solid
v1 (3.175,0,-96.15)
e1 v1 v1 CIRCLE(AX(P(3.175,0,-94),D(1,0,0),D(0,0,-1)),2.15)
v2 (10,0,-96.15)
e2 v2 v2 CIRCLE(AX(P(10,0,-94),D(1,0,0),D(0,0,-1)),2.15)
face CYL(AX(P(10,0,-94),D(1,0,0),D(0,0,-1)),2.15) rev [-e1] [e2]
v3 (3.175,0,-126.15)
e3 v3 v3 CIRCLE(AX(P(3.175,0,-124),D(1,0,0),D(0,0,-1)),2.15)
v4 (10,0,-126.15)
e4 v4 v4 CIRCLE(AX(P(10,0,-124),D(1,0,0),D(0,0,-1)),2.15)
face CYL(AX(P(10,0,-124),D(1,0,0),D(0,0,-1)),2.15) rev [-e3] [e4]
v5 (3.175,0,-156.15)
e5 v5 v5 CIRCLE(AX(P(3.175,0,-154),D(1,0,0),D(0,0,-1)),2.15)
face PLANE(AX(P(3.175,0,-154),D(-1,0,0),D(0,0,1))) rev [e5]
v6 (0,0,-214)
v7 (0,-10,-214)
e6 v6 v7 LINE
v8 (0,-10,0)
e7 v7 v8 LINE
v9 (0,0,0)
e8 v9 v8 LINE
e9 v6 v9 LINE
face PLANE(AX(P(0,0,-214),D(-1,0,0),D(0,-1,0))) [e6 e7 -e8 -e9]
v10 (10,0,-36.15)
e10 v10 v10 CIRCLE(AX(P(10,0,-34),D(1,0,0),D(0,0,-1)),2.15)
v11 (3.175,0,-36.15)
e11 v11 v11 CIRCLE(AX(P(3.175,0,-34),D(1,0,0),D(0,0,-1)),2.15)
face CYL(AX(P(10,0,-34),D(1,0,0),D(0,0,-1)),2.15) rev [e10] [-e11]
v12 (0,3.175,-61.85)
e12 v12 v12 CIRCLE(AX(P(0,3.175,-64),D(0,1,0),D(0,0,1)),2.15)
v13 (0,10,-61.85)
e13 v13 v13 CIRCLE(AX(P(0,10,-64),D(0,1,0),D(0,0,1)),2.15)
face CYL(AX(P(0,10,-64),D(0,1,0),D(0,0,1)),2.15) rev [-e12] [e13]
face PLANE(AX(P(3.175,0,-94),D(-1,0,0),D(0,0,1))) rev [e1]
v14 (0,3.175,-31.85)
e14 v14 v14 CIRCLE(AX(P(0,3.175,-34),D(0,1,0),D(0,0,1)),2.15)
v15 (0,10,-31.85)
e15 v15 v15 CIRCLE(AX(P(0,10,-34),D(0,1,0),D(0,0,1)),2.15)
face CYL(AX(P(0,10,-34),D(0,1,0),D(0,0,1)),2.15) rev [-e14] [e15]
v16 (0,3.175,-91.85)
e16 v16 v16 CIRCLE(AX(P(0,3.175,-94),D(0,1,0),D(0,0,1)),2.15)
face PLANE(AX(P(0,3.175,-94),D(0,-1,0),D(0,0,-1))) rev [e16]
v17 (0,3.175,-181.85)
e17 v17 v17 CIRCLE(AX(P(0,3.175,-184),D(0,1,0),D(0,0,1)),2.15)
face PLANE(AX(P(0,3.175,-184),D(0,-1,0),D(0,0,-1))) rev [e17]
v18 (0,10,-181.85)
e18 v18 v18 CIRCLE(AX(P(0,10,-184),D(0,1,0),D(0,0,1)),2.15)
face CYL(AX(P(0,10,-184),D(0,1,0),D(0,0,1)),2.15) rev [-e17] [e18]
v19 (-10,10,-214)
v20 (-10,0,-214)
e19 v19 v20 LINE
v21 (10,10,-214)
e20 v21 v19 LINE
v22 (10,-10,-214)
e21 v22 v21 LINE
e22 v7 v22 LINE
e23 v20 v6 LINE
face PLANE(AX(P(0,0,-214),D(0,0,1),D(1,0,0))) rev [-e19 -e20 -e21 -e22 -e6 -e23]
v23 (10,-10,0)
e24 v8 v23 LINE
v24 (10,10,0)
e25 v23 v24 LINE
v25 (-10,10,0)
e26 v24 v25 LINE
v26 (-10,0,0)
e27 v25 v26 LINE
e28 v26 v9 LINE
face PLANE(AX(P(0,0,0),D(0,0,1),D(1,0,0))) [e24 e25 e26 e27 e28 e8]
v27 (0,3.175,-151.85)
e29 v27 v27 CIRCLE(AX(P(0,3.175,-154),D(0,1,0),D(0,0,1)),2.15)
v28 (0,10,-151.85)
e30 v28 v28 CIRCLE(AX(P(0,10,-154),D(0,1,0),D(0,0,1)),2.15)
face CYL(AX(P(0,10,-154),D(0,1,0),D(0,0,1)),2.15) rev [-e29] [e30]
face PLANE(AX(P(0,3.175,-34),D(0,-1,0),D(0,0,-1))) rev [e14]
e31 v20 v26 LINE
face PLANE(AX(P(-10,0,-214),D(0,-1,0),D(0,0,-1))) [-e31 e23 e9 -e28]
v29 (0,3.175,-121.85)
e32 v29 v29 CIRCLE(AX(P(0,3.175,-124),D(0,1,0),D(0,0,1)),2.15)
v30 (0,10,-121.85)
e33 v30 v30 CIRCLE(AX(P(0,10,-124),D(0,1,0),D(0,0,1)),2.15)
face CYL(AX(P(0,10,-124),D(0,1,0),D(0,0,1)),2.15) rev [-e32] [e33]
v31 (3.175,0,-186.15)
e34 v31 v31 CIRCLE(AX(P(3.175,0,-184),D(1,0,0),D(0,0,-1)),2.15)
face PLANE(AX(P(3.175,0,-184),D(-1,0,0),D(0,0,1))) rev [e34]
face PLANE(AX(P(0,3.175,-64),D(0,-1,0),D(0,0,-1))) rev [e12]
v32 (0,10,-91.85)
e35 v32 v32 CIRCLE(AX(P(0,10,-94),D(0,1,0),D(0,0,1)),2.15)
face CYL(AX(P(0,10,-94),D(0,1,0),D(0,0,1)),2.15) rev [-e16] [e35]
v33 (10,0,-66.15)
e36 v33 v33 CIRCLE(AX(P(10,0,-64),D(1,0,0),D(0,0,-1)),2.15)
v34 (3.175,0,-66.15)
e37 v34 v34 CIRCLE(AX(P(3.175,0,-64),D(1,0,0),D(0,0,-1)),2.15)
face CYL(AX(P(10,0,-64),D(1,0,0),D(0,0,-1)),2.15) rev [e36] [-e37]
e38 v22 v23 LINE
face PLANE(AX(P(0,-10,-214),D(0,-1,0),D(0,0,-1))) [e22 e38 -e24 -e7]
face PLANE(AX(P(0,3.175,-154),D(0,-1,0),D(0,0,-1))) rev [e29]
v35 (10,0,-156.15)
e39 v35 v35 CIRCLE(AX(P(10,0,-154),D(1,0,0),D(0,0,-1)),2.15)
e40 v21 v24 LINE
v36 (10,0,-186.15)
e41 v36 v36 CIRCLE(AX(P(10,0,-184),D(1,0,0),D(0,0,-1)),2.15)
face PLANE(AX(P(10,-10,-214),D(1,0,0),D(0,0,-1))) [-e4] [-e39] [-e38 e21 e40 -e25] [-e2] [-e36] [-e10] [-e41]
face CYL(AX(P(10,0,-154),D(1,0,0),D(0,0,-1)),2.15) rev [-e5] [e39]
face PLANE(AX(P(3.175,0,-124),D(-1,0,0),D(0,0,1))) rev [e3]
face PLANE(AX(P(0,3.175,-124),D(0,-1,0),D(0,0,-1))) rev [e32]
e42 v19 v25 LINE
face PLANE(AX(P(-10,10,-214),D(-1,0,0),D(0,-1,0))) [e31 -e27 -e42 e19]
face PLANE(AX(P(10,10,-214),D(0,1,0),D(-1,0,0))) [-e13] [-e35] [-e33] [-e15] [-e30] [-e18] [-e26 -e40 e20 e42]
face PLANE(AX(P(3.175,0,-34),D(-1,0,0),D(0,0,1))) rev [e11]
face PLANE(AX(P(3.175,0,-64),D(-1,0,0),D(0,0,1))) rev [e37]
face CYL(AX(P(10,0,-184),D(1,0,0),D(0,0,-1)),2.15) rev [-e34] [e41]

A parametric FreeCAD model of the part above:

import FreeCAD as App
import Part
import Sketcher

V = App.Vector


def add_polygon(sketch, points):
    """Adds a closed chain of lines whose ends are joined by coincident constraints."""
    first, n = sketch.GeometryCount, len(points)
    for a, b in zip(points, points[1:] + points[:1]):
        sketch.addGeometry(Part.LineSegment(App.Vector(*a, 0), App.Vector(*b, 0)), False)
    for i in range(n):
        sketch.addConstraint(Sketcher.Constraint("Coincident", first + i, 2, first + (i + 1) % n, 1))

doc = App.newDocument("Part")
body = doc.addObject("PartDesign::Body", "Body")

# Sketch on XY plane
sketch1 = body.newObject("Sketcher::SketchObject", "Sketch")
sketch1.AttachmentSupport = (doc.getObject("XY_Plane"), [""])
sketch1.MapMode = "FlatFace"
add_polygon(sketch1, [(0, -10), (10, -10), (10, 10), (-10, 10), (-10, 0), (0, 0)])  # lines 0-5
sketch1.addConstraint(Sketcher.Constraint("Horizontal", 0))
sketch1.addConstraint(Sketcher.Constraint("Vertical", 1))
sketch1.addConstraint(Sketcher.Constraint("Horizontal", 2))
sketch1.addConstraint(Sketcher.Constraint("Vertical", 3))
sketch1.addConstraint(Sketcher.Constraint("Horizontal", 4))
sketch1.addConstraint(Sketcher.Constraint("Vertical", 5))
sketch1.addConstraint(Sketcher.Constraint("Coincident", 4, 2, -1, 1))
sketch1.addConstraint(Sketcher.Constraint("Symmetric", 0, 2, 2, 2, -1, 1))
sketch1.addConstraint(Sketcher.Constraint("Equal", 2, 1))
sketch1.addConstraint(Sketcher.Constraint("DistanceX", 0, 1, 0, 2, 10.0))
pad1 = body.newObject("PartDesign::Pad", "Pad")
pad1.Profile = sketch1
pad1.Length = 214
pad1.Reversed = True

# Sketch on YZ plane
sketch2 = body.newObject("Sketcher::SketchObject", "Sketch001")
sketch2.AttachmentSupport = (doc.getObject("YZ_Plane"), [""])
sketch2.MapMode = "FlatFace"
sketch2.AttachmentOffset = App.Placement(V(0, 0, 10), App.Rotation())
sketch2.addGeometry(Part.Circle(V(0, -34, 0), V(0, 0, 1), 2.15), False)
sketch2.addGeometry(Part.Circle(V(0, -64, 0), V(0, 0, 1), 2.15), False)
sketch2.addGeometry(Part.Circle(V(0, -94, 0), V(0, 0, 1), 2.15), False)
sketch2.addGeometry(Part.Circle(V(0, -124, 0), V(0, 0, 1), 2.15), False)
sketch2.addGeometry(Part.Circle(V(0, -154, 0), V(0, 0, 1), 2.15), False)
sketch2.addGeometry(Part.Circle(V(0, -184, 0), V(0, 0, 1), 2.15), False)
sketch2.addConstraint(Sketcher.Constraint("Equal", 0, 1))
sketch2.addConstraint(Sketcher.Constraint("Equal", 1, 2))
sketch2.addConstraint(Sketcher.Constraint("Equal", 2, 3))
sketch2.addConstraint(Sketcher.Constraint("Equal", 3, 4))
sketch2.addConstraint(Sketcher.Constraint("Equal", 4, 5))
sketch2.addConstraint(Sketcher.Constraint("PointOnObject", 0, 3, -2))
sketch2.addConstraint(Sketcher.Constraint("PointOnObject", 1, 3, -2))
sketch2.addConstraint(Sketcher.Constraint("PointOnObject", 2, 3, -2))
sketch2.addConstraint(Sketcher.Constraint("PointOnObject", 3, 3, -2))
sketch2.addConstraint(Sketcher.Constraint("PointOnObject", 4, 3, -2))
sketch2.addConstraint(Sketcher.Constraint("PointOnObject", 5, 3, -2))
sketch2.addConstraint(Sketcher.Constraint("Diameter", 0, 4.3))
sketch2.addConstraint(Sketcher.Constraint("DistanceY", 0, 3, -1, 1, 34.0))
sketch2.addConstraint(Sketcher.Constraint("DistanceY", 1, 3, -1, 1, 64.0))
sketch2.addConstraint(Sketcher.Constraint("DistanceY", 2, 3, -1, 1, 94.0))
sketch2.addConstraint(Sketcher.Constraint("DistanceY", 3, 3, -1, 1, 124.0))
sketch2.addConstraint(Sketcher.Constraint("DistanceY", 4, 3, -1, 1, 154.0))
sketch2.addConstraint(Sketcher.Constraint("DistanceY", 5, 3, -1, 1, 184.0))
doc.recompute()
hole = body.newObject("PartDesign::Hole", "Hole")
hole.Profile = sketch2
hole.ThreadType = "None"
hole.Diameter = 4.3
hole.DepthType = "Dimension"
hole.Depth = 6.825
hole.DrillPoint = "Flat"

# Sketch on XZ plane
sketch3 = body.newObject("Sketcher::SketchObject", "Sketch002")
sketch3.AttachmentSupport = (doc.getObject("XZ_Plane"), [""])
sketch3.MapMode = "FlatFace"
sketch3.AttachmentOffset = App.Placement(V(0, 0, -10), App.Rotation())
sketch3.addGeometry(Part.Circle(V(0, -34, 0), V(0, 0, 1), 2.15), False)
sketch3.addGeometry(Part.Circle(V(0, -64, 0), V(0, 0, 1), 2.15), False)
sketch3.addGeometry(Part.Circle(V(0, -94, 0), V(0, 0, 1), 2.15), False)
sketch3.addGeometry(Part.Circle(V(0, -124, 0), V(0, 0, 1), 2.15), False)
sketch3.addGeometry(Part.Circle(V(0, -154, 0), V(0, 0, 1), 2.15), False)
sketch3.addGeometry(Part.Circle(V(0, -184, 0), V(0, 0, 1), 2.15), False)
sketch3.addConstraint(Sketcher.Constraint("Equal", 0, 1))
sketch3.addConstraint(Sketcher.Constraint("Equal", 1, 2))
sketch3.addConstraint(Sketcher.Constraint("Equal", 2, 3))
sketch3.addConstraint(Sketcher.Constraint("Equal", 3, 4))
sketch3.addConstraint(Sketcher.Constraint("Equal", 4, 5))
sketch3.addConstraint(Sketcher.Constraint("PointOnObject", 0, 3, -2))
sketch3.addConstraint(Sketcher.Constraint("PointOnObject", 1, 3, -2))
sketch3.addConstraint(Sketcher.Constraint("PointOnObject", 2, 3, -2))
sketch3.addConstraint(Sketcher.Constraint("PointOnObject", 3, 3, -2))
sketch3.addConstraint(Sketcher.Constraint("PointOnObject", 4, 3, -2))
sketch3.addConstraint(Sketcher.Constraint("PointOnObject", 5, 3, -2))
sketch3.addConstraint(Sketcher.Constraint("Diameter", 0, 4.3))
sketch3.addConstraint(Sketcher.Constraint("DistanceY", 0, 3, -1, 1, 34.0))
sketch3.addConstraint(Sketcher.Constraint("DistanceY", 1, 3, -1, 1, 64.0))
sketch3.addConstraint(Sketcher.Constraint("DistanceY", 2, 3, -1, 1, 94.0))
sketch3.addConstraint(Sketcher.Constraint("DistanceY", 3, 3, -1, 1, 124.0))
sketch3.addConstraint(Sketcher.Constraint("DistanceY", 4, 3, -1, 1, 154.0))
sketch3.addConstraint(Sketcher.Constraint("DistanceY", 5, 3, -1, 1, 184.0))
doc.recompute()
hole2 = body.newObject("PartDesign::Hole", "Hole001")
hole2.Profile = sketch3
hole2.ThreadType = "None"
hole2.Diameter = 4.3
hole2.DepthType = "Dimension"
hole2.Depth = 6.825
hole2.DrillPoint = "Flat"
hole2.Reversed = True

doc.recompute()
